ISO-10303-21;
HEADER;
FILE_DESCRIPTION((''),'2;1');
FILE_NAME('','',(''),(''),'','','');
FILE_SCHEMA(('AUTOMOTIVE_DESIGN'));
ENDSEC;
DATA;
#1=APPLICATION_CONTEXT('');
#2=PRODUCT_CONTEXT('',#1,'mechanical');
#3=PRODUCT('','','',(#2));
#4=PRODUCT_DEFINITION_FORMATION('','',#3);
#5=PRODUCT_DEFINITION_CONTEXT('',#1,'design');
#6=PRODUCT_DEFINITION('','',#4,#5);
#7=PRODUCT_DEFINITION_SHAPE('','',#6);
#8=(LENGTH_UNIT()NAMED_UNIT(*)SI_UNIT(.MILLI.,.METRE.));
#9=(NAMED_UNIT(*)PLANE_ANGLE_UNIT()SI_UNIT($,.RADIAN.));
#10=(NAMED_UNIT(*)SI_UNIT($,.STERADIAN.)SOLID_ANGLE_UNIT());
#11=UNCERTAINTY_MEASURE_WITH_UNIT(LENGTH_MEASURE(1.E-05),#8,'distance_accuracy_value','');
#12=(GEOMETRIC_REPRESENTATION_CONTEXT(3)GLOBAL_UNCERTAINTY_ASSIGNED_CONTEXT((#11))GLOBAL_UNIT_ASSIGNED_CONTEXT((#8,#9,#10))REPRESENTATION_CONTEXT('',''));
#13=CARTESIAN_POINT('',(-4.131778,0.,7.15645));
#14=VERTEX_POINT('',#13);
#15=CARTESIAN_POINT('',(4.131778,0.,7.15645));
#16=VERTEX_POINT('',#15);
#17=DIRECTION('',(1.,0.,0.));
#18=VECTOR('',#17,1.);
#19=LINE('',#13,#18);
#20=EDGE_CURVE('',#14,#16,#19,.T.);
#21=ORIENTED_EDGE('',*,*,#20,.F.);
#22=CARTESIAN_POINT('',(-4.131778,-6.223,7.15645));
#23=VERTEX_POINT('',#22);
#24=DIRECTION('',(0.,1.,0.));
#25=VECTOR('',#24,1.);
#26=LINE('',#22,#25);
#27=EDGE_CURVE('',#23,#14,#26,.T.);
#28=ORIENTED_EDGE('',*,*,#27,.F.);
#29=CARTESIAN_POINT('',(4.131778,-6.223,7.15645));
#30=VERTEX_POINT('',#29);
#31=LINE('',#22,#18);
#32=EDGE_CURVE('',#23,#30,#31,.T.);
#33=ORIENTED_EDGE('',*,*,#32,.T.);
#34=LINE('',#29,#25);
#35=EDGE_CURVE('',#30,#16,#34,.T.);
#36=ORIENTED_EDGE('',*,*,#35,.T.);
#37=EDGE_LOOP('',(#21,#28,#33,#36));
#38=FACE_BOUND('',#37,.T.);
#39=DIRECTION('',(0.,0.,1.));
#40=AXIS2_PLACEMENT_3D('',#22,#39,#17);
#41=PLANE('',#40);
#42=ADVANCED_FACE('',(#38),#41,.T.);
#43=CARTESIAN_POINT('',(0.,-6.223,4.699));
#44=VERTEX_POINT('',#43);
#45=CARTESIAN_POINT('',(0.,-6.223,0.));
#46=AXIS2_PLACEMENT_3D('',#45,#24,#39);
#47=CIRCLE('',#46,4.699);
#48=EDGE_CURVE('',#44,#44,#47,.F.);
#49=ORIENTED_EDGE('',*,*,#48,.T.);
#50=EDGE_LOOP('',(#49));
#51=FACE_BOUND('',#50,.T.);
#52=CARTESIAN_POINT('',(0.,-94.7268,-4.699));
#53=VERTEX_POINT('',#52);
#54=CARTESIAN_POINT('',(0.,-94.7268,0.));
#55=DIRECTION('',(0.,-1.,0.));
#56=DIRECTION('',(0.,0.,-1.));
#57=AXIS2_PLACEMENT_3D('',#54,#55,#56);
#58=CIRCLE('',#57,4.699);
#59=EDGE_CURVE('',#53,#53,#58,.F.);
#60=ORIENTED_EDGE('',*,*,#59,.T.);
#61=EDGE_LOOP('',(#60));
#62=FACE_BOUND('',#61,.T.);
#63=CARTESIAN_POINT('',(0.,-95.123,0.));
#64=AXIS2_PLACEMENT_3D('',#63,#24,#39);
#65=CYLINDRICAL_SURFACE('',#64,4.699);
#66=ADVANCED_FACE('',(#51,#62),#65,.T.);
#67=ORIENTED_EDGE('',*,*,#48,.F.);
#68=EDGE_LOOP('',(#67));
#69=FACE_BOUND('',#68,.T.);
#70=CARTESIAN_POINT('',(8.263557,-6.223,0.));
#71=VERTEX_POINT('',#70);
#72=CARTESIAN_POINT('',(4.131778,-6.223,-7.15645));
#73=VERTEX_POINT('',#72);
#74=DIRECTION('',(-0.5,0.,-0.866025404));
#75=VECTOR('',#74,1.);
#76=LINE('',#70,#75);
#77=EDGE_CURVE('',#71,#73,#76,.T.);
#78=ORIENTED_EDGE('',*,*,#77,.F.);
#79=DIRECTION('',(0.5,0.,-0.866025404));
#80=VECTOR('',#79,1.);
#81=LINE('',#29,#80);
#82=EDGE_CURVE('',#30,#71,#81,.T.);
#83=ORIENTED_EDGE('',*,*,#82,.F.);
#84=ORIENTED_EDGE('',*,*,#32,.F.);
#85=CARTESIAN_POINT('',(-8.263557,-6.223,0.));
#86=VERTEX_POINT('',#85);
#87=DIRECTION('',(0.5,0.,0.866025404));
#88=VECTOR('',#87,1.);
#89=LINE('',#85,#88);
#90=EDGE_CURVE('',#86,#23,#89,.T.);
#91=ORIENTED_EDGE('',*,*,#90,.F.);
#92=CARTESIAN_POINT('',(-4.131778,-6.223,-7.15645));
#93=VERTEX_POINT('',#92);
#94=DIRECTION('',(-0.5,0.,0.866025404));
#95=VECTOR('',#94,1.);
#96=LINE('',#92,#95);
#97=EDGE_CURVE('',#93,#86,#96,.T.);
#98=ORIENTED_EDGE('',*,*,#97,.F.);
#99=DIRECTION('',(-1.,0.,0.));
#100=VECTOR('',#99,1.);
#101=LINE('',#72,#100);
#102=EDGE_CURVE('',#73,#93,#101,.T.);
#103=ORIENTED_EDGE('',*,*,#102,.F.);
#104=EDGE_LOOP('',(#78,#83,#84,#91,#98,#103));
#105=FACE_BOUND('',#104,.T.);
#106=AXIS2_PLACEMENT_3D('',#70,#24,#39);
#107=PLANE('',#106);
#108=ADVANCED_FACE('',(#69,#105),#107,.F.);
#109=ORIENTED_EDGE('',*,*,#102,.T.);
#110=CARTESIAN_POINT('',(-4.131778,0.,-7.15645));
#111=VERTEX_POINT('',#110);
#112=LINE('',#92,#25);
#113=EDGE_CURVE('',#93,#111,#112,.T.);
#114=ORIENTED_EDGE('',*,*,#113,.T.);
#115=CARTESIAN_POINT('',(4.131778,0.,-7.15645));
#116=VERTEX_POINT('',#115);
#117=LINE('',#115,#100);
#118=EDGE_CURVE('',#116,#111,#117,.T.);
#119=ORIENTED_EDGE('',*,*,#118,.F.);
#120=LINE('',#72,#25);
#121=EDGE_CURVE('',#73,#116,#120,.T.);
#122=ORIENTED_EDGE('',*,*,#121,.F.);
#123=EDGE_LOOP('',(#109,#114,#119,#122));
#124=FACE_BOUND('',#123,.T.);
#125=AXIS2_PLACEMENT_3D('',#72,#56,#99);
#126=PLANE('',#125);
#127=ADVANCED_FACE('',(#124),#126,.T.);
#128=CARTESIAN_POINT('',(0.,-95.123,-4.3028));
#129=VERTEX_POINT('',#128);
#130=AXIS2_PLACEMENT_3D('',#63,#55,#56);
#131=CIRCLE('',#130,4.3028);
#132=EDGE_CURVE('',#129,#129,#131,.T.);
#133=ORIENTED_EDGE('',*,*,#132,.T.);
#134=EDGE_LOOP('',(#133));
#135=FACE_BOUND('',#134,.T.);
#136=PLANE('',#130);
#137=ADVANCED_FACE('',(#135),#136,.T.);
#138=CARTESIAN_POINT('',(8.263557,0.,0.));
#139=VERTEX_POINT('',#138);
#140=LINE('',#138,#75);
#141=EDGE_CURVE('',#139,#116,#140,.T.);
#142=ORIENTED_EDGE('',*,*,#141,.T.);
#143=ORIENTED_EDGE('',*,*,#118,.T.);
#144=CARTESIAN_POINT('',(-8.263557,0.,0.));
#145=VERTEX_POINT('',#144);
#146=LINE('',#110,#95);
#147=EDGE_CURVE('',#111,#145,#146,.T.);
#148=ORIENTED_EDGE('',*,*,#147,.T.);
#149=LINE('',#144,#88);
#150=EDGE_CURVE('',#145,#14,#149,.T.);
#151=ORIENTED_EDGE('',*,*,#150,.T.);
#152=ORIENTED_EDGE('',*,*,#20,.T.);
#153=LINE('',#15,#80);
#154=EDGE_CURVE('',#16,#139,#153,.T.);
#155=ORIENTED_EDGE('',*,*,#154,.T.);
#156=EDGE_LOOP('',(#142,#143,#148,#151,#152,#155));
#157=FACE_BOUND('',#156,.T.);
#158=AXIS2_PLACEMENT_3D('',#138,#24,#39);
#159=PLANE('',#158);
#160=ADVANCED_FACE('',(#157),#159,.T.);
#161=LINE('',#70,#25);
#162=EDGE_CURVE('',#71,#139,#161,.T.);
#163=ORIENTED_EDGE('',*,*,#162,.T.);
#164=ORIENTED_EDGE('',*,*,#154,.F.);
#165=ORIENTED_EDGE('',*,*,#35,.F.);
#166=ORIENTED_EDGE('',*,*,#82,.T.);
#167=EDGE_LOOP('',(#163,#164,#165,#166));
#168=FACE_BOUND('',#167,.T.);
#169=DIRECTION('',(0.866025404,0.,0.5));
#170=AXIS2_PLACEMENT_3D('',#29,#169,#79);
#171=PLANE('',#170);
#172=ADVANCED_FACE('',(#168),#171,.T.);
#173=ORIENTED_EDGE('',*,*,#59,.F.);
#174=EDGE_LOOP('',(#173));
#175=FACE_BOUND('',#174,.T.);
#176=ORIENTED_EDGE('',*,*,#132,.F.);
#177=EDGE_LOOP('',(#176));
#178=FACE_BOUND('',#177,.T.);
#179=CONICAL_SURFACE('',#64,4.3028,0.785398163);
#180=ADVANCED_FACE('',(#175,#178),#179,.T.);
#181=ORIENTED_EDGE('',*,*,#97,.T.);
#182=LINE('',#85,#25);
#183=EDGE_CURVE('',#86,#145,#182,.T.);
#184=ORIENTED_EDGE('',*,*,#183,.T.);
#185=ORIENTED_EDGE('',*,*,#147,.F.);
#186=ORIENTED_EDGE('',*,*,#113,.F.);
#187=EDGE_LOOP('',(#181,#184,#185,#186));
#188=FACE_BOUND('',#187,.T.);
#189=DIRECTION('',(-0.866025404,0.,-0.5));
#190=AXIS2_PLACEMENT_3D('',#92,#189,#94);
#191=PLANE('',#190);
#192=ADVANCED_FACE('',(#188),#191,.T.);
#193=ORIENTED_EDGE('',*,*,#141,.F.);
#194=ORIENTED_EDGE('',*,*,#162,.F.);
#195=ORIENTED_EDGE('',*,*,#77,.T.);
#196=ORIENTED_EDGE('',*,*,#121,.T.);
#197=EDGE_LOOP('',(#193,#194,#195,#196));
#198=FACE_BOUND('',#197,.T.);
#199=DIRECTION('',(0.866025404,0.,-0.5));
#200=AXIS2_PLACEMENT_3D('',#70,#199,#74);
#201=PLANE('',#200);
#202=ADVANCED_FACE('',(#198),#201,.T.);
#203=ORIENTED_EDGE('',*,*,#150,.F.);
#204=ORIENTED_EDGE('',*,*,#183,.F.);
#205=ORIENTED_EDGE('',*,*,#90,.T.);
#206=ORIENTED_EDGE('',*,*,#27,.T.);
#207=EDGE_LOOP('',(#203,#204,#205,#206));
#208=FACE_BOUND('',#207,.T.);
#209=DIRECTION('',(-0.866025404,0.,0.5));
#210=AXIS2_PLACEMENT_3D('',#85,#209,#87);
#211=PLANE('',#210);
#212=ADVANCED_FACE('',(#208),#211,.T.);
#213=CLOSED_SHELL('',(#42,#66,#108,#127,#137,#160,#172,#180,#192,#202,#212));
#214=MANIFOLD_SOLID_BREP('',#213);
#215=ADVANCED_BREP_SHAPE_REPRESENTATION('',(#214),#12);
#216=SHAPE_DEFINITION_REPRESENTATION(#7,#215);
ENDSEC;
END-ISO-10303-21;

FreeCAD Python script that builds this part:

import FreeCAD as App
import Part
import Sketcher
Q = App.Units.Quantity


def edges_at(feature, points):
    """Names of the edges that pass closest to the given points."""
    edges = feature.Shape.Edges
    near = lambda p: min(range(len(edges)), key=lambda i: edges[i].distToShape(Part.Vertex(*p))[0])
    return sorted({f"Edge{near(p) + 1}" for p in points})


def add_polygon(sketch, points):
    """Adds a closed chain of lines whose ends are joined by coincident constraints."""
    first, n = sketch.GeometryCount, len(points)
    for a, b in zip(points, points[1:] + points[:1]):
        sketch.addGeometry(Part.LineSegment(App.Vector(*a, 0), App.Vector(*b, 0)), False)
    for i in range(n):
        sketch.addConstraint(Sketcher.Constraint("Coincident", first + i, 2, first + (i + 1) % n, 1))

doc = App.newDocument("Part")
body = doc.addObject("PartDesign::Body", "Body")

sketch1 = body.newObject("Sketcher::SketchObject", "Sketch")
sketch1.AttachmentSupport = (doc.getObject("XZ_Plane"), [""])
sketch1.MapMode = "FlatFace"
add_polygon(sketch1, [(8.263557, 0), (4.131778, -7.15645), (-4.131778, -7.15645), (-8.263557, 0), (-4.131778, 7.15645), (4.131778, 7.15645)])
sketch1.addConstraint([
    Sketcher.Constraint("Horizontal", 1),
    Sketcher.Constraint("Horizontal", 4),
    Sketcher.Constraint("Symmetric", 0, 2, 3, 2, -1, 1),
    Sketcher.Constraint("Symmetric", 2, 2, 5, 2, -1, 1),
    Sketcher.Constraint("PointOnObject", 2, 2, -1),
    Sketcher.Constraint("Parallel", 2, 5),
    Sketcher.Constraint("Vertical", 1, 2, 3, 2),
    Sketcher.Constraint("Angle", 0, Q("-120 deg")),
    Sketcher.Constraint("DistanceY", 1, 2, 3, 2, Q("0.5635 in")),
    Sketcher.Constraint("DistanceX", 1, 2, 1, 1, 8.263557),
])
pad1 = body.newObject("PartDesign::Pad", "Pad")
pad1.Profile = sketch1
pad1.Length = Q("0.245 in")

sketch2 = body.newObject("Sketcher::SketchObject", "Sketch001")
sketch2.AttachmentSupport = (doc.getObject("XZ_Plane"), [""])
sketch2.MapMode = "FlatFace"
sketch2.AttachmentOffset = App.Placement(App.Vector(0, 0, 0.245 * 25.4), App.Rotation())
sketch2.addGeometry(Part.Circle(App.Vector(0, 0, 0), App.Vector(0, 0, 1), 4.699), False)
sketch2.addConstraint([
    Sketcher.Constraint("Coincident", 0, 3, -1, 1),
    Sketcher.Constraint("Diameter", 0, Q("0.37 in")),
])
pad2 = body.newObject("PartDesign::Pad", "Pad001")
pad2.Profile = sketch2
pad2.Length = Q("3.5 in")
doc.recompute()

chamfer = body.newObject("PartDesign::Chamfer", "Chamfer")
chamfer.Base = (pad2, edges_at(pad2, [(0, -95.123, -4.699)]))
chamfer.Size = 0.3962

doc.recompute()
